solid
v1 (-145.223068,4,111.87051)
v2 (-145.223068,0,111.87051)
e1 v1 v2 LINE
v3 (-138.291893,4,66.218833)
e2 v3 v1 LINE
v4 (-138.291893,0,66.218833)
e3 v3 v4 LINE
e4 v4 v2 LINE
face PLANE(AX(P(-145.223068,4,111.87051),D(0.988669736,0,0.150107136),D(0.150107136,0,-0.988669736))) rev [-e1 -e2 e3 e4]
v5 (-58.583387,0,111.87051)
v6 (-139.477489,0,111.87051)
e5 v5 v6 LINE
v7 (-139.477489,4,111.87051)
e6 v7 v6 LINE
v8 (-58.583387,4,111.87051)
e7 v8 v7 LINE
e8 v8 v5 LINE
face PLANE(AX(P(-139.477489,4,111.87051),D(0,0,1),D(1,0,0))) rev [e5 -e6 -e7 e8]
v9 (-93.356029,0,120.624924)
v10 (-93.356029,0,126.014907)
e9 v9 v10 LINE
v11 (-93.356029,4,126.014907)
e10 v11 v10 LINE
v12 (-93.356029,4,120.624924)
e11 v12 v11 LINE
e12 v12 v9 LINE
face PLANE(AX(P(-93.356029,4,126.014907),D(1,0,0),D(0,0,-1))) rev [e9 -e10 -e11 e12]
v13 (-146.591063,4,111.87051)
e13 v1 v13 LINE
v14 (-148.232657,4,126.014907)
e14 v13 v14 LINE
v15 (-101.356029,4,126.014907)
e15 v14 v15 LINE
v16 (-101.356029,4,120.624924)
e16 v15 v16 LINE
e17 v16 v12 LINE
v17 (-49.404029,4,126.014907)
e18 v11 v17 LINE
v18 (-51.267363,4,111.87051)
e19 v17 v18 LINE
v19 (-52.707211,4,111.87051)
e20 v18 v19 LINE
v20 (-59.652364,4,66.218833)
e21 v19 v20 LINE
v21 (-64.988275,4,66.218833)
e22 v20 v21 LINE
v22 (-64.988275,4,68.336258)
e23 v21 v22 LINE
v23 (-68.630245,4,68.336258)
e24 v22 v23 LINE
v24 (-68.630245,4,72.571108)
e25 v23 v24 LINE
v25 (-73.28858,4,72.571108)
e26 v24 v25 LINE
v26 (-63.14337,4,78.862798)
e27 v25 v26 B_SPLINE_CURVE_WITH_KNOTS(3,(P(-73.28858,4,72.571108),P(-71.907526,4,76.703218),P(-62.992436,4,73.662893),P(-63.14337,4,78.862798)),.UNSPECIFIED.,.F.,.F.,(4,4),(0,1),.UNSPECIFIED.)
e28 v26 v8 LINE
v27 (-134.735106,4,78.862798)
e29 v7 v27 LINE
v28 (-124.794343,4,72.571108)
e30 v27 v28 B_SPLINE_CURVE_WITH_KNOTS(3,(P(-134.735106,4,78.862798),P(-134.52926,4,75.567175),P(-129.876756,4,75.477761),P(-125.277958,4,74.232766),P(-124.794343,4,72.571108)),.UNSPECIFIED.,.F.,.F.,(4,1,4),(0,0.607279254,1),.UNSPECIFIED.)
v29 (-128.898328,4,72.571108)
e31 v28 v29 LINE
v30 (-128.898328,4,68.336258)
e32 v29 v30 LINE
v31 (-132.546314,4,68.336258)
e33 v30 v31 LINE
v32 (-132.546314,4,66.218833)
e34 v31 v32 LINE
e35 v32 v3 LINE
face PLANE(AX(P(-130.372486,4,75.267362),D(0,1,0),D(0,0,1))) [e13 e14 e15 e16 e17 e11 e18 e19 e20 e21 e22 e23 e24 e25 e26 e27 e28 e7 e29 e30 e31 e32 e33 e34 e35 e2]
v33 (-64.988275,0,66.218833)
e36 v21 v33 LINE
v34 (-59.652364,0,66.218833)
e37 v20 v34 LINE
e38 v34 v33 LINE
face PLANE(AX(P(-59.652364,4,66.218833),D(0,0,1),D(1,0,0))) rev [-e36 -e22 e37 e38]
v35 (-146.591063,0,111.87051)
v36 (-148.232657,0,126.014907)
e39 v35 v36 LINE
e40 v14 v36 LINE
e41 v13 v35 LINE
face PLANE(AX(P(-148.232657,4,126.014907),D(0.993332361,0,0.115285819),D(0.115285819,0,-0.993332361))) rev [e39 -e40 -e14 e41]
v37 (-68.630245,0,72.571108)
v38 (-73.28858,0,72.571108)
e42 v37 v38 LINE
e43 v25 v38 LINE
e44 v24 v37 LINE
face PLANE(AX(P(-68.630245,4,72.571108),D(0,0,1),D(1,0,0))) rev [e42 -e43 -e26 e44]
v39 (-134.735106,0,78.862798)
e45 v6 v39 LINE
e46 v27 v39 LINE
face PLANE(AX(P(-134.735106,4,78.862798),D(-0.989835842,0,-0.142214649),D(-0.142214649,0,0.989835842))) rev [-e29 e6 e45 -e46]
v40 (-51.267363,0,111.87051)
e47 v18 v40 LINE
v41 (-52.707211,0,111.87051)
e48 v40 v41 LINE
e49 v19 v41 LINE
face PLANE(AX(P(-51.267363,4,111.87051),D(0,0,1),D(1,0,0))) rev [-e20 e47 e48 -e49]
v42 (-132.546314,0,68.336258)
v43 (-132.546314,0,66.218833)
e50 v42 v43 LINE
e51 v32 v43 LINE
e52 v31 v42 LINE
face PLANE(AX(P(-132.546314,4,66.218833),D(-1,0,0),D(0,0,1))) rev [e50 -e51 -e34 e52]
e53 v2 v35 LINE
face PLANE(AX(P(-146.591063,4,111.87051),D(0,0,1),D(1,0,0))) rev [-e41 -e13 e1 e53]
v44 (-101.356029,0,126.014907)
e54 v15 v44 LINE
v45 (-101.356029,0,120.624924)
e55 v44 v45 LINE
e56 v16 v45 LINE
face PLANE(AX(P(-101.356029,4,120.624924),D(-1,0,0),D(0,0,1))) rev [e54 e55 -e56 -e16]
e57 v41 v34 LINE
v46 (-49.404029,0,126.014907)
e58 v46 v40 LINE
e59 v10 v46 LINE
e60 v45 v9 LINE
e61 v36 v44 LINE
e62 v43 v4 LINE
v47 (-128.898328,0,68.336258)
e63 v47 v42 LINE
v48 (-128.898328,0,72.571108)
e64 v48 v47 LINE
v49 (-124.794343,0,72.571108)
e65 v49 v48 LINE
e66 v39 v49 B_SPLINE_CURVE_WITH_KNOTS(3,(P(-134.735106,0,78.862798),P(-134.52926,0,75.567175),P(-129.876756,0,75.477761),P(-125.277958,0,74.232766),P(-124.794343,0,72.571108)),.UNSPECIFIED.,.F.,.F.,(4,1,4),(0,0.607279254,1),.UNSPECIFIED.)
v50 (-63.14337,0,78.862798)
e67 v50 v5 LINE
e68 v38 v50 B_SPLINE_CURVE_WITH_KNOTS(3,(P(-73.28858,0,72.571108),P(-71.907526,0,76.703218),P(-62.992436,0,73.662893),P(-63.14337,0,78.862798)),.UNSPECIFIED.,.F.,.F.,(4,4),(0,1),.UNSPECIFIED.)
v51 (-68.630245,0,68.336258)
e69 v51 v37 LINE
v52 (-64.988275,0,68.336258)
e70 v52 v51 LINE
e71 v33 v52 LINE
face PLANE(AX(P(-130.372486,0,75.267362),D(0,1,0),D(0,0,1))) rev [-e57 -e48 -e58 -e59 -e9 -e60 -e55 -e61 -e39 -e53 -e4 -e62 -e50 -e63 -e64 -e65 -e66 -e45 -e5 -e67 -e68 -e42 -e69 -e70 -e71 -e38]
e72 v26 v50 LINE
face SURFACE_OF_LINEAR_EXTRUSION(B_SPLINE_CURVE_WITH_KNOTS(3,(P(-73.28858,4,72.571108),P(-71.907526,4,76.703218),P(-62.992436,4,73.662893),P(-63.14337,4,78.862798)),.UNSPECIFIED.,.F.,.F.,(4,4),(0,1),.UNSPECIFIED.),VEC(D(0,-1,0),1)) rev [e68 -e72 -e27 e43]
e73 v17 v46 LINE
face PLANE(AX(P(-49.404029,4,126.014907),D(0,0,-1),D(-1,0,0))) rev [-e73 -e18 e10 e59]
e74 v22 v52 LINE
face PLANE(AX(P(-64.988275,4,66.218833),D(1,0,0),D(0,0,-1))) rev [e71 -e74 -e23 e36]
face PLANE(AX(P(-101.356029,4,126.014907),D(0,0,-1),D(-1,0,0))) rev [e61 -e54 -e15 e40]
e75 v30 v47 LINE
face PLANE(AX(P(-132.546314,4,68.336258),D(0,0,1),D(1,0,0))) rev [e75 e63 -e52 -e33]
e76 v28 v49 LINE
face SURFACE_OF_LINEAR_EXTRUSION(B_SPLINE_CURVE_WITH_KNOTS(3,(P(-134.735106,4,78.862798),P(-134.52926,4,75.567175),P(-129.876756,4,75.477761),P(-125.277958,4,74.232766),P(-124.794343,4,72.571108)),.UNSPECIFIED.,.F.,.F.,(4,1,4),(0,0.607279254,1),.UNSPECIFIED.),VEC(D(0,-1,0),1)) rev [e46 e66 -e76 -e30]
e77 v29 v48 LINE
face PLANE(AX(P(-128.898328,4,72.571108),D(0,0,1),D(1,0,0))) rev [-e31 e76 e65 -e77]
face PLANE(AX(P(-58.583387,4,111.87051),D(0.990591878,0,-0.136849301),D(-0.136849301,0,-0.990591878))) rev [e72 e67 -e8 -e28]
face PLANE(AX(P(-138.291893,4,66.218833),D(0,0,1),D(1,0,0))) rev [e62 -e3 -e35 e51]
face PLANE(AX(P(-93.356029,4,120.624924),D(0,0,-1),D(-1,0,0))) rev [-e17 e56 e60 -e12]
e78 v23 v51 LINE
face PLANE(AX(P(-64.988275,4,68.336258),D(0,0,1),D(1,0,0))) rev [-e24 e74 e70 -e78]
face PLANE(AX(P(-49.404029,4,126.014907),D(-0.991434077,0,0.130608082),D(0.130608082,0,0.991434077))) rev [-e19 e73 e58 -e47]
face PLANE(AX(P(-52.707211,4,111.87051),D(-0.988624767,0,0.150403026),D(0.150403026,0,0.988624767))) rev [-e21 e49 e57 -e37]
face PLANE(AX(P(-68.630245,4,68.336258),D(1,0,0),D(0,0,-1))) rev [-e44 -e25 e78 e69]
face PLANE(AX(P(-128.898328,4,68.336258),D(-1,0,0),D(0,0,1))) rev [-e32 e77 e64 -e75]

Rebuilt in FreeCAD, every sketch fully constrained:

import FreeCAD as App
import Part
import Sketcher

doc = App.newDocument("Part")
body = doc.addObject("PartDesign::Body", "Body")

sketch1 = body.newObject("Sketcher::SketchObject", "Sketch")
sketch1.AttachmentSupport = (doc.getObject("XZ_Plane"), [""])
sketch1.MapMode = "FlatFace"
sketch1.addGeometry([
    Part.LineSegment(App.Vector(-49.404029, 126.014907, 0), App.Vector(-51.267363, 111.87051, 0)),
    Part.LineSegment(App.Vector(-51.267363, 111.87051, 0), App.Vector(-52.707211, 111.87051, 0)),
    Part.LineSegment(App.Vector(-52.707211, 111.87051, 0), App.Vector(-59.652364, 66.218833, 0)),
    Part.LineSegment(App.Vector(-59.652364, 66.218833, 0), App.Vector(-64.988275, 66.218833, 0)),
    Part.LineSegment(App.Vector(-64.988275, 66.218833, 0), App.Vector(-64.988275, 68.336258, 0)),
    Part.LineSegment(App.Vector(-64.988275, 68.336258, 0), App.Vector(-68.630245, 68.336258, 0)),
    Part.LineSegment(App.Vector(-68.630245, 68.336258, 0), App.Vector(-68.630245, 72.571108, 0)),
    Part.LineSegment(App.Vector(-68.630245, 72.571108, 0), App.Vector(-73.28858, 72.571108, 0)),
    Part.BSplineCurve([App.Vector(-63.14337, 78.862798, 0), App.Vector(-62.992436, 73.662893, 0), App.Vector(-71.907526, 76.703218, 0), App.Vector(-73.28858, 72.571108, 0)], [4, 4], [0, 1], False, 3, [1, 1, 1, 1], False),
    Part.LineSegment(App.Vector(-63.14337, 78.862798, 0), App.Vector(-58.583387, 111.87051, 0)),
    Part.LineSegment(App.Vector(-58.583387, 111.87051, 0), App.Vector(-139.477489, 111.87051, 0)),
    Part.LineSegment(App.Vector(-139.477489, 111.87051, 0), App.Vector(-134.735106, 78.862798, 0)),
    Part.BSplineCurve([App.Vector(-124.794343, 72.571108, 0), App.Vector(-125.277958, 74.232766, 0), App.Vector(-129.876756, 75.477761, 0), App.Vector(-134.52926, 75.567175, 0), App.Vector(-134.735106, 78.862798, 0)], [4, 1, 4], [0, 0.392720746, 1], False, 3, [1, 1, 1, 1, 1], False),
    Part.LineSegment(App.Vector(-124.794343, 72.571108, 0), App.Vector(-128.898328, 72.571108, 0)),
    Part.LineSegment(App.Vector(-128.898328, 72.571108, 0), App.Vector(-128.898328, 68.336258, 0)),
    Part.LineSegment(App.Vector(-128.898328, 68.336258, 0), App.Vector(-132.546314, 68.336258, 0)),
    Part.LineSegment(App.Vector(-132.546314, 68.336258, 0), App.Vector(-132.546314, 66.218833, 0)),
    Part.LineSegment(App.Vector(-132.546314, 66.218833, 0), App.Vector(-138.291893, 66.218833, 0)),
    Part.LineSegment(App.Vector(-138.291893, 66.218833, 0), App.Vector(-145.223068, 111.87051, 0)),
    Part.LineSegment(App.Vector(-145.223068, 111.87051, 0), App.Vector(-146.591063, 111.87051, 0)),
    Part.LineSegment(App.Vector(-146.591063, 111.87051, 0), App.Vector(-148.232657, 126.014907, 0)),
    Part.LineSegment(App.Vector(-148.232657, 126.014907, 0), App.Vector(-101.356029, 126.014907, 0)),
    Part.LineSegment(App.Vector(-101.356029, 126.014907, 0), App.Vector(-101.356029, 120.624924, 0)),
    Part.LineSegment(App.Vector(-101.356029, 120.624924, 0), App.Vector(-93.356029, 120.624924, 0)),
    Part.LineSegment(App.Vector(-93.356029, 120.624924, 0), App.Vector(-93.356029, 126.014907, 0)),
    Part.LineSegment(App.Vector(-93.356029, 126.014907, 0), App.Vector(-49.404029, 126.014907, 0)),
], False)
sketch1.addConstraint([
    Sketcher.Constraint("Block", 8),
    Sketcher.Constraint("Block", 12),
    Sketcher.Constraint("Coincident", 0, 2, 1, 1),
    Sketcher.Constraint("Coincident", 1, 2, 2, 1),
    Sketcher.Constraint("Coincident", 2, 2, 3, 1),
    Sketcher.Constraint("Coincident", 3, 2, 4, 1),
    Sketcher.Constraint("Coincident", 4, 2, 5, 1),
    Sketcher.Constraint("Coincident", 5, 2, 6, 1),
    Sketcher.Constraint("Coincident", 6, 2, 7, 1),
    Sketcher.Constraint("Coincident", 7, 2, 8, 2),
    Sketcher.Constraint("Coincident", 8, 1, 9, 1),
    Sketcher.Constraint("Coincident", 9, 2, 10, 1),
    Sketcher.Constraint("Coincident", 10, 2, 11, 1),
    Sketcher.Constraint("Coincident", 11, 2, 12, 2),
    Sketcher.Constraint("Coincident", 12, 1, 13, 1),
    Sketcher.Constraint("Coincident", 13, 2, 14, 1),
    Sketcher.Constraint("Coincident", 14, 2, 15, 1),
    Sketcher.Constraint("Coincident", 15, 2, 16, 1),
    Sketcher.Constraint("Coincident", 16, 2, 17, 1),
    Sketcher.Constraint("Coincident", 17, 2, 18, 1),
    Sketcher.Constraint("Coincident", 18, 2, 19, 1),
    Sketcher.Constraint("Coincident", 19, 2, 20, 1),
    Sketcher.Constraint("Coincident", 20, 2, 21, 1),
    Sketcher.Constraint("Coincident", 21, 2, 22, 1),
    Sketcher.Constraint("Coincident", 22, 2, 23, 1),
    Sketcher.Constraint("Coincident", 23, 2, 24, 1),
    Sketcher.Constraint("Coincident", 24, 2, 25, 1),
    Sketcher.Constraint("Coincident", 25, 2, 0, 1),
    Sketcher.Constraint("Horizontal", 1),
    Sketcher.Constraint("Horizontal", 3),
    Sketcher.Constraint("Vertical", 4),
    Sketcher.Constraint("Horizontal", 5),
    Sketcher.Constraint("Vertical", 6),
    Sketcher.Constraint("Horizontal", 7),
    Sketcher.Constraint("Horizontal", 10),
    Sketcher.Constraint("Horizontal", 13),
    Sketcher.Constraint("Vertical", 14),
    Sketcher.Constraint("Horizontal", 15),
    Sketcher.Constraint("Vertical", 16),
    Sketcher.Constraint("Horizontal", 17),
    Sketcher.Constraint("Horizontal", 19),
    Sketcher.Constraint("Horizontal", 21),
    Sketcher.Constraint("Vertical", 22),
    Sketcher.Constraint("Horizontal", 23),
    Sketcher.Constraint("Vertical", 24),
    Sketcher.Constraint("Horizontal", 25),
    Sketcher.Constraint("DistanceX", 23, 1, 23, 2, 8.0),
    Sketcher.Constraint("DistanceX", 25, 1, 25, 2, 43.952),
    Sketcher.Constraint("DistanceX", 2, 2, 0, 2, 8.385002),
    Sketcher.Constraint("DistanceX", 1, 2, 1, 1, 1.439849),
    Sketcher.Constraint("DistanceX", 3, 2, 3, 1, 5.33591),
    Sketcher.Constraint("DistanceX", 5, 2, 5, 1, 3.64197),
    Sketcher.Constraint("DistanceX", 17, 2, 17, 1, 5.745579),
    Sketcher.Constraint("DistanceY", 6, 1, 6, 2, 4.234849),
    Sketcher.Constraint("DistanceY", 14, 2, 14, 1, 4.234849),
    Sketcher.Constraint("DistanceY", 13, 2, 20, 2, 53.4438),
    Sketcher.Constraint("Distance", 2, 46.17695),
    Sketcher.Constraint("Distance", 18, 46.17485),
    Sketcher.Constraint("Distance", 20, 14.23934),
    Sketcher.Constraint("DistanceX", 7, 2, 7, 1, 4.658334),
    Sketcher.Constraint("DistanceX", 10, 2, 10, 1, 80.894102),
    Sketcher.Constraint("DistanceX", 13, 2, 13, 1, 4.103985),
    Sketcher.Constraint("DistanceX", 15, 2, 15, 1, 3.647987),
    Sketcher.Constraint("DistanceX", 19, 2, 19, 1, 1.367995),
    Sketcher.Constraint("DistanceX", 21, 1, 21, 2, 46.876627),
    Sketcher.Constraint("DistanceY", 4, 1, 4, 2, 2.117425),
    Sketcher.Constraint("DistanceY", 16, 2, 16, 1, 2.117425),
    Sketcher.Constraint("DistanceY", 22, 2, 22, 1, 5.389983),
    Sketcher.Constraint("DistanceY", 24, 1, 24, 2, 5.389983),
    Sketcher.Constraint("DistanceY", -1, 1, 9, 2, 111.87051),
    Sketcher.Constraint("DistanceX", 10, 2, -1, 1, 139.477489),
    Sketcher.Constraint("DistanceY", -1, 1, 18, 2, 111.87051),
])
pad1 = body.newObject("PartDesign::Pad", "Pad")
pad1.Profile = sketch1
pad1.Length = 4
pad1.Reversed = True

doc.recompute()
